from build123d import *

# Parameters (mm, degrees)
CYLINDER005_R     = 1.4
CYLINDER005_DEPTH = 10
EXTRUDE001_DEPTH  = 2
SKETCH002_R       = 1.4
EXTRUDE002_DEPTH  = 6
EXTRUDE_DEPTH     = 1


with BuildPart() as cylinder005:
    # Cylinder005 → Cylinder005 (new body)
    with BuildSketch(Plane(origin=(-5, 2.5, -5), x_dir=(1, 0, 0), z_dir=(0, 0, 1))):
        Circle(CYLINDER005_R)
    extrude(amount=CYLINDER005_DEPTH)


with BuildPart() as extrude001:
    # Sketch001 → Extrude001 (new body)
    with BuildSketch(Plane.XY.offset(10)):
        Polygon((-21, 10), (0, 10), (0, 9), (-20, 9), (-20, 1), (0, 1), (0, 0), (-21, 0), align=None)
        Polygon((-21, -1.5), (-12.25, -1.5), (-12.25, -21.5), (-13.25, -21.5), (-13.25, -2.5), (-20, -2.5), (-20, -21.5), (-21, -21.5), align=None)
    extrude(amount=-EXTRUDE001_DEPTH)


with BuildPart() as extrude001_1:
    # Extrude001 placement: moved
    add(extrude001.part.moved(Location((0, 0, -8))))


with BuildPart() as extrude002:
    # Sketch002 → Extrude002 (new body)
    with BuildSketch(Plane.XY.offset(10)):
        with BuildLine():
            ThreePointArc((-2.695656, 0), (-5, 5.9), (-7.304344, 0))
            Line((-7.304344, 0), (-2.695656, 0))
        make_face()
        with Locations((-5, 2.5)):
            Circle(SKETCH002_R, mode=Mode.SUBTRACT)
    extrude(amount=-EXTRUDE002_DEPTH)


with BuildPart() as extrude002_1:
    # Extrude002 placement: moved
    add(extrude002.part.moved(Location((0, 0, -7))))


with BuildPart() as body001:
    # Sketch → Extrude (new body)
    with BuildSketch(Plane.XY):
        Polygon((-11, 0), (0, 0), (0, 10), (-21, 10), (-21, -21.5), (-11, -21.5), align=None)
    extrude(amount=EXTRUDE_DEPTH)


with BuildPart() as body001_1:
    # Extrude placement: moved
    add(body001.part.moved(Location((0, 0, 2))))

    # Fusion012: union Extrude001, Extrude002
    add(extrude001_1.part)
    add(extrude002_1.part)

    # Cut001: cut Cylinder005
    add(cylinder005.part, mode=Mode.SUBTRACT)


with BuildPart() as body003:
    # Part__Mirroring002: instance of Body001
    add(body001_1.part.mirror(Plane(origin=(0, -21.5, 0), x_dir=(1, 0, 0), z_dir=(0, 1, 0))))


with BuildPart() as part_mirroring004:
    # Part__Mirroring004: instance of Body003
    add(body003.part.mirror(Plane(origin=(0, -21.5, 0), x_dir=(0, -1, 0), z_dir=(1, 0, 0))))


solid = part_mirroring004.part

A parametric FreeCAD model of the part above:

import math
import FreeCAD as App
import Part
import Sketcher
from FreeCAD import Vector
Q = App.Units.Quantity


def add_polygon(sketch, points):
    """Adds a closed chain of lines whose ends are joined by coincident constraints."""
    first, n = sketch.GeometryCount, len(points)
    for a, b in zip(points, points[1:] + points[:1]):
        sketch.addGeometry(Part.LineSegment(App.Vector(*a, 0), App.Vector(*b, 0)), False)
    for i in range(n):
        sketch.addConstraint(Sketcher.Constraint("Coincident", first + i, 2, first + (i + 1) % n, 1))

doc = App.newDocument("Part")
body = doc.addObject("PartDesign::Body", "Body")

# Sketch on XY plane
sketch1 = doc.addObject("Sketcher::SketchObject", "Sketch")
body.addObject(sketch1)
sketch1.AttachmentSupport = (doc.XY_Plane, [""])
sketch1.MapMode = "FlatFace"
sketch1.AttachmentOffset = App.Placement(Vector(0, 0, -5), App.Rotation())
sketch1.addGeometry(Part.Circle(Vector(-5, 2.5, 0), Vector(0, 0, 1), 1.4), False)
sketch1.addConstraint([
    Sketcher.Constraint("Diameter", 0, Q("2.8 mm")),
    Sketcher.Constraint("DistanceX", 0, 3, -1, 1, Q("5 mm")),
    Sketcher.Constraint("DistanceY", -1, 1, 0, 3, Q("2.5 mm")),
])
pad1 = doc.addObject("PartDesign::Pad", "Pad")
body.addObject(pad1)
pad1.Profile = sketch1
pad1.Length = 10
body2 = doc.addObject("PartDesign::Body", "Body001")
body2.AllowCompound = True

# Sketch on XY plane
sketch2 = doc.addObject("Sketcher::SketchObject", "Sketch001")
body2.addObject(sketch2)
sketch2.AttachmentSupport = (doc.getObject("XY_Plane001"), [""])
sketch2.MapMode = "FlatFace"
sketch2.AttachmentOffset = App.Placement(Vector(0, 0, 10), App.Rotation())
add_polygon(sketch2, [(0, 10), (-21, 10), (-21, 0), (0, 0), (0, 1), (-20, 1), (-20, 9), (0, 9)])  # lines 0-7
add_polygon(sketch2, [(-12.25, -1.5), (-21, -1.5), (-21, -21.5), (-20, -21.5), (-20, -2.5), (-13.25, -2.5), (-13.25, -21.5), (-12.25, -21.5)])  # lines 8-15
sketch2.addConstraint([
    Sketcher.Constraint("Horizontal", 0),
    Sketcher.Constraint("Vertical", 1),
    Sketcher.Constraint("Horizontal", 2),
    Sketcher.Constraint("Vertical", 3),
    Sketcher.Constraint("Horizontal", 4),
    Sketcher.Constraint("Vertical", 5),
    Sketcher.Constraint("Horizontal", 6),
    Sketcher.Constraint("Vertical", 7),
    Sketcher.Constraint("Horizontal", 8),
    Sketcher.Constraint("Vertical", 9),
    Sketcher.Constraint("Horizontal", 10),
    Sketcher.Constraint("Vertical", 11),
    Sketcher.Constraint("Horizontal", 12),
    Sketcher.Constraint("Vertical", 13),
    Sketcher.Constraint("Horizontal", 14),
    Sketcher.Constraint("Vertical", 15),
    Sketcher.Constraint("Coincident", 2, 2, -1, 1),
    Sketcher.Constraint("PointOnObject", 6, 2, -2),
    Sketcher.Constraint("Horizontal", 10, 2, 13, 2),
    Sketcher.Constraint("Vertical", 1, 2, 8, 2),
    Sketcher.Constraint("Vertical", 5, 2, 10, 2),
    Sketcher.Constraint("Equal", 10, 14),
    Sketcher.Constraint("Equal", 14, 3),
    Sketcher.Constraint("Equal", 3, 7),
    Sketcher.Constraint("Equal", 6, 9),
    Sketcher.Constraint("DistanceX", 0, 2, 0, 1, Q("21 mm")),
    Sketcher.Constraint("DistanceX", 4, 2, 4, 1, Q("20 mm")),
    Sketcher.Constraint("DistanceY", 1, 2, 1, 1, Q("10 mm")),
    Sketcher.Constraint("DistanceY", 11, 1, 11, 2, Q("19 mm")),
    Sketcher.Constraint("DistanceX", 8, 2, 8, 1, Q("8.75 mm")),
    Sketcher.Constraint("DistanceY", 8, 2, -1, 1, Q("1.5 mm")),
])
pad2 = doc.addObject("PartDesign::Pad", "Pad001")
body2.addObject(pad2)
pad2.Profile = sketch2
pad2.Length = 2
pad2.Reversed = True
body3 = doc.addObject("PartDesign::Body", "Body002")
body3.AllowCompound = True
doc.recompute()

body2.Placement = App.Placement(Vector(0, 0, -8), App.Rotation(Vector(0, 0, 1), 0))
boolean = doc.addObject("PartDesign::Boolean", "Boolean")
body3.addObject(boolean)
boolean.Type = "Fuse"
boolean.addObjects([body2])
body4 = doc.addObject("PartDesign::Body", "Body003")

# Sketch on XY plane
sketch3 = doc.addObject("Sketcher::SketchObject", "Sketch002")
body4.addObject(sketch3)
sketch3.AttachmentSupport = (doc.getObject("XY_Plane003"), [""])
sketch3.MapMode = "FlatFace"
sketch3.AttachmentOffset = App.Placement(Vector(0, 0, 10), App.Rotation())
sketch3.addGeometry([
    Part.ArcOfCircle(Part.Circle(Vector(-5, 2.5, 0), Vector(0, 0, 1), 3.4), math.radians(-47.33207), math.radians(227.33207)),
    Part.LineSegment(Vector(-7.304344, 0, 0), Vector(-2.695656, 0, 0)),
    Part.Circle(Vector(-5, 2.5, 0), Vector(0, 0, 1), 1.4),
], False)
sketch3.addConstraint([
    Sketcher.Constraint("Coincident", 0, 1, 1, 2),
    Sketcher.Constraint("Coincident", 1, 1, 0, 2),
    Sketcher.Constraint("Horizontal", 1),
    Sketcher.Constraint("Coincident", 2, 3, 0, 3),
    Sketcher.Constraint("PointOnObject", 0, 1, -1),
    Sketcher.Constraint("Diameter", 2, Q("2.8 mm")),
    Sketcher.Constraint("Radius", 0, Q("3.4 mm")),
    Sketcher.Constraint("DistanceX", 0, 3, -1, 1, Q("5 mm")),
    Sketcher.Constraint("DistanceY", -1, 1, 0, 3, Q("2.5 mm")),
])
pad3 = doc.addObject("PartDesign::Pad", "Pad002")
body4.addObject(pad3)
pad3.Profile = sketch3
pad3.Length = 6
pad3.Reversed = True
body5 = doc.addObject("PartDesign::Body", "Body004")
doc.recompute()

body4.Placement = App.Placement(Vector(0, 0, -7), App.Rotation(Vector(0, 0, 1), 0))
boolean2 = doc.addObject("PartDesign::Boolean", "Boolean001")
body5.addObject(boolean2)
boolean2.Type = "Fuse"
boolean2.addObjects([body4])
body6 = doc.addObject("PartDesign::Body", "Body005")

# Sketch on XY plane
sketch4 = doc.addObject("Sketcher::SketchObject", "Sketch003")
body6.addObject(sketch4)
sketch4.AttachmentSupport = (doc.getObject("XY_Plane005"), [""])
sketch4.MapMode = "FlatFace"
add_polygon(sketch4, [(-11, 0), (0, 0), (0, 10), (-21, 10), (-21, -21.5), (-11, -21.5)])  # lines 0-5
sketch4.addConstraint([
    Sketcher.Constraint("Horizontal", 0),
    Sketcher.Constraint("Vertical", 1),
    Sketcher.Constraint("Horizontal", 2),
    Sketcher.Constraint("Vertical", 3),
    Sketcher.Constraint("Horizontal", 4),
    Sketcher.Constraint("Vertical", 5),
    Sketcher.Constraint("Coincident", 0, 2, -1, 1),
    Sketcher.Constraint("Equal", 4, 1),
    Sketcher.Constraint("DistanceX", 0, 1, 0, 2, Q("11 mm")),
    Sketcher.Constraint("DistanceX", 2, 2, 2, 1, Q("21 mm")),
    Sketcher.Constraint("DistanceY", 3, 2, 3, 1, Q("31.5 mm")),
])
pad4 = doc.addObject("PartDesign::Pad", "Pad003")
body6.addObject(pad4)
pad4.Profile = sketch4
pad4.Length = 1
body7 = doc.addObject("PartDesign::Body", "Body006")
doc.recompute()

body6.Placement = App.Placement(Vector(0, 0, 2), App.Rotation(Vector(0, 0, 1), 0))
boolean3 = doc.addObject("PartDesign::Boolean", "Boolean002")
body7.addObject(boolean3)
boolean3.Type = "Fuse"
boolean3.addObjects([body6])
doc.recompute()

boolean4 = doc.addObject("PartDesign::Boolean", "Boolean003")
body7.addObject(boolean4)
boolean4.Type = "Fuse"
boolean4.addObjects([body3])
doc.recompute()

boolean5 = doc.addObject("PartDesign::Boolean", "Boolean004")
body7.addObject(boolean5)
boolean5.Type = "Fuse"
boolean5.addObjects([body5])
doc.recompute()

boolean6 = doc.addObject("PartDesign::Boolean", "Boolean005")
body7.addObject(boolean6)
boolean6.Type = "Cut"
boolean6.addObjects([body])
body8 = doc.addObject("PartDesign::Body", "Body007")
doc.recompute()

mirroring = doc.addObject("Part::Mirroring", "Mirroring")
mirroring.Source = body7
mirroring.Base = Vector(0, -21.5, 0)
mirroring.Normal = Vector(0, 1, 0)
body8.BaseFeature = mirroring
doc.recompute()
body9 = doc.addObject("PartDesign::Body", "Body008")
doc.recompute()

mirroring2 = doc.addObject("Part::Mirroring", "Mirroring001")
mirroring2.Source = body8
mirroring2.Base = Vector(0, -21.5, 0)
mirroring2.Normal = Vector(1, 0, 0)
body9.BaseFeature = mirroring2
doc.recompute()
body7.Visibility = False
body8.Visibility = False
mirroring.Visibility = False
mirroring2.Visibility = False

doc.recompute()
